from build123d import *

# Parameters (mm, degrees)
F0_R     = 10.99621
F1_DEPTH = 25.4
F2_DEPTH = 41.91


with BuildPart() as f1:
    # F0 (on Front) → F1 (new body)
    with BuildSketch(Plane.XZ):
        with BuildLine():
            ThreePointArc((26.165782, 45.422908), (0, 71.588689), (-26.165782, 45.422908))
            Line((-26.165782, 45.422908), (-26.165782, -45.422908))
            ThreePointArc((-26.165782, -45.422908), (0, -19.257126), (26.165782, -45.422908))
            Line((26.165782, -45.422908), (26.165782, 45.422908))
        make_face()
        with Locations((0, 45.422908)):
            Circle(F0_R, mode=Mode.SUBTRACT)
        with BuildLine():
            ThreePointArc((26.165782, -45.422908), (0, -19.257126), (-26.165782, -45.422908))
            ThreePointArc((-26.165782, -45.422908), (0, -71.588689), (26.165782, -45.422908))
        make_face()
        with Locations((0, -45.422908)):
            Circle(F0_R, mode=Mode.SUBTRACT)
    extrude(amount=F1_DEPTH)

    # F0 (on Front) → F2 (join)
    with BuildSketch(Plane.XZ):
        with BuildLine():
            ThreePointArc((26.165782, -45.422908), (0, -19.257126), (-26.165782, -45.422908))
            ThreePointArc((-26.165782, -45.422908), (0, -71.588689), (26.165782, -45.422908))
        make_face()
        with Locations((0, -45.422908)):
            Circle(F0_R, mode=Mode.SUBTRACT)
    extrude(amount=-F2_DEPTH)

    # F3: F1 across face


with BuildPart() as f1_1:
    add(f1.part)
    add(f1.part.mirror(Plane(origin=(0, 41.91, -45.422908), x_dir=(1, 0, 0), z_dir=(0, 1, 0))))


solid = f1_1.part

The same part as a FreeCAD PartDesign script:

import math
import FreeCAD as App
import Part
import Sketcher
from FreeCAD import Vector
Q = App.Units.Quantity

doc = App.newDocument("Part")
params = doc.addObject("Spreadsheet::Sheet", "Params")
for row, (alias, value) in enumerate([
    ("pad1_length", "1 in"),
    ("pad2_length", "1.65 in"),
], start=1):
    params.set(f"A{row}", alias)
    params.set(f"B{row}", "=" + value)
    params.setAlias(f"B{row}", alias)

body = doc.addObject("PartDesign::Body", "Body")

# Sketch on XZ plane
sketch1 = doc.addObject("Sketcher::SketchObject", "Sketch")
body.addObject(sketch1)
sketch1.AttachmentSupport = (doc.XZ_Plane, [""])
sketch1.MapMode = "FlatFace"
sketch1.addGeometry(Part.ArcOfCircle(Part.Circle(Vector(0, 45, 0), Vector(0, 0, 1), 26), math.radians(0), math.radians(180)), False)
sketch1.addGeometry(Part.LineSegment(Vector(-26, 45, 0), Vector(-26, -45, 0)), False)
sketch1.addGeometry(Part.ArcOfCircle(Part.Circle(Vector(0, -45, 0), Vector(0, 0, 1), 26), math.radians(-180), math.radians(0)), False)
sketch1.addGeometry(Part.LineSegment(Vector(26, -45, 0), Vector(26, 45, 0)), False)
sketch1.addGeometry(Part.Circle(Vector(0, -45, 0), Vector(0, 0, 1), 11), False)
sketch1.addGeometry(Part.Circle(Vector(0, 45, 0), Vector(0, 0, 1), 11), False)
sketch1.addConstraint(Sketcher.Constraint("Tangent", 0, 2, 1, 1))
sketch1.addConstraint(Sketcher.Constraint("Tangent", 1, 2, 2, 1))
sketch1.addConstraint(Sketcher.Constraint("Tangent", 2, 2, 3, 1))
sketch1.addConstraint(Sketcher.Constraint("Tangent", 3, 2, 0, 1))
sketch1.addConstraint(Sketcher.Constraint("Vertical", 1))
sketch1.addConstraint(Sketcher.Constraint("Vertical", 3))
sketch1.addConstraint(Sketcher.Constraint("Coincident", 4, 3, 2, 3))
sketch1.addConstraint(Sketcher.Constraint("Coincident", 5, 3, 0, 3))
sketch1.addConstraint(Sketcher.Constraint("Equal", 4, 5))
sketch1.addConstraint(Sketcher.Constraint("Symmetric", 0, 3, 2, 3, -1, 1))
sketch1.addConstraint(Sketcher.Constraint("Diameter", 4, Q("21.99242 mm")))
sketch1.addConstraint(Sketcher.Constraint("Radius", 0, Q("26.165782 mm")))
sketch1.addConstraint(Sketcher.Constraint("DistanceY", 1, 2, 1, 1, Q("90.845816 mm")))
pad1 = doc.addObject("PartDesign::Pad", "Pad")
body.addObject(pad1)
pad1.Profile = sketch1
pad1.setExpression("Length", "Params.pad1_length")

# Sketch on XZ plane
sketch2 = doc.addObject("Sketcher::SketchObject", "Sketch001")
body.addObject(sketch2)
sketch2.AttachmentSupport = (doc.XZ_Plane, [""])
sketch2.MapMode = "FlatFace"
sketch2.addGeometry(Part.ArcOfCircle(Part.Circle(Vector(0, -45, 0), Vector(0, 0, 1), 26), math.radians(0), math.radians(180)), False)
sketch2.addGeometry(Part.ArcOfCircle(Part.Circle(Vector(0, -45, 0), Vector(0, 0, 1), 26), math.radians(-180), math.radians(0)), False)
sketch2.addGeometry(Part.Circle(Vector(0, -45, 0), Vector(0, 0, 1), 11), False)
sketch2.addConstraint(Sketcher.Constraint("Tangent", 0, 1, 1, 2))
sketch2.addConstraint(Sketcher.Constraint("Coincident", 1, 1, 0, 2))
sketch2.addConstraint(Sketcher.Constraint("Coincident", 2, 3, 0, 3))
sketch2.addConstraint(Sketcher.Constraint("Symmetric", 0, 1, 1, 1, -2))
sketch2.addConstraint(Sketcher.Constraint("Horizontal", 2, 3, 0, 1))
sketch2.addConstraint(Sketcher.Constraint("Diameter", 2, Q("21.99242 mm")))
sketch2.addConstraint(Sketcher.Constraint("Radius", 0, Q("26.165782 mm")))
sketch2.addConstraint(Sketcher.Constraint("DistanceY", 0, 3, -1, 1, Q("45.422908 mm")))
pad2 = doc.addObject("PartDesign::Pad", "Pad001")
body.addObject(pad2)
pad2.Profile = sketch2
pad2.setExpression("Length", "Params.pad2_length")
pad2.Reversed = True
body2 = doc.addObject("PartDesign::Body", "Body001")
doc.recompute()

body2.BaseFeature = body
doc.recompute()

mirroring = doc.addObject("Part::Mirroring", "Mirroring")
mirroring.Source = body
mirroring.Base = Vector(0, 41.91, -45.422908)
mirroring.Normal = Vector(0, 1, 0)
body3 = doc.addObject("PartDesign::Body", "Body002")
body3.BaseFeature = mirroring
boolean = doc.addObject("PartDesign::Boolean", "Boolean")
body2.addObject(boolean)
boolean.Type = "Fuse"
boolean.addObjects([body3])
doc.recompute()
mirroring.Visibility = False

doc.recompute()
